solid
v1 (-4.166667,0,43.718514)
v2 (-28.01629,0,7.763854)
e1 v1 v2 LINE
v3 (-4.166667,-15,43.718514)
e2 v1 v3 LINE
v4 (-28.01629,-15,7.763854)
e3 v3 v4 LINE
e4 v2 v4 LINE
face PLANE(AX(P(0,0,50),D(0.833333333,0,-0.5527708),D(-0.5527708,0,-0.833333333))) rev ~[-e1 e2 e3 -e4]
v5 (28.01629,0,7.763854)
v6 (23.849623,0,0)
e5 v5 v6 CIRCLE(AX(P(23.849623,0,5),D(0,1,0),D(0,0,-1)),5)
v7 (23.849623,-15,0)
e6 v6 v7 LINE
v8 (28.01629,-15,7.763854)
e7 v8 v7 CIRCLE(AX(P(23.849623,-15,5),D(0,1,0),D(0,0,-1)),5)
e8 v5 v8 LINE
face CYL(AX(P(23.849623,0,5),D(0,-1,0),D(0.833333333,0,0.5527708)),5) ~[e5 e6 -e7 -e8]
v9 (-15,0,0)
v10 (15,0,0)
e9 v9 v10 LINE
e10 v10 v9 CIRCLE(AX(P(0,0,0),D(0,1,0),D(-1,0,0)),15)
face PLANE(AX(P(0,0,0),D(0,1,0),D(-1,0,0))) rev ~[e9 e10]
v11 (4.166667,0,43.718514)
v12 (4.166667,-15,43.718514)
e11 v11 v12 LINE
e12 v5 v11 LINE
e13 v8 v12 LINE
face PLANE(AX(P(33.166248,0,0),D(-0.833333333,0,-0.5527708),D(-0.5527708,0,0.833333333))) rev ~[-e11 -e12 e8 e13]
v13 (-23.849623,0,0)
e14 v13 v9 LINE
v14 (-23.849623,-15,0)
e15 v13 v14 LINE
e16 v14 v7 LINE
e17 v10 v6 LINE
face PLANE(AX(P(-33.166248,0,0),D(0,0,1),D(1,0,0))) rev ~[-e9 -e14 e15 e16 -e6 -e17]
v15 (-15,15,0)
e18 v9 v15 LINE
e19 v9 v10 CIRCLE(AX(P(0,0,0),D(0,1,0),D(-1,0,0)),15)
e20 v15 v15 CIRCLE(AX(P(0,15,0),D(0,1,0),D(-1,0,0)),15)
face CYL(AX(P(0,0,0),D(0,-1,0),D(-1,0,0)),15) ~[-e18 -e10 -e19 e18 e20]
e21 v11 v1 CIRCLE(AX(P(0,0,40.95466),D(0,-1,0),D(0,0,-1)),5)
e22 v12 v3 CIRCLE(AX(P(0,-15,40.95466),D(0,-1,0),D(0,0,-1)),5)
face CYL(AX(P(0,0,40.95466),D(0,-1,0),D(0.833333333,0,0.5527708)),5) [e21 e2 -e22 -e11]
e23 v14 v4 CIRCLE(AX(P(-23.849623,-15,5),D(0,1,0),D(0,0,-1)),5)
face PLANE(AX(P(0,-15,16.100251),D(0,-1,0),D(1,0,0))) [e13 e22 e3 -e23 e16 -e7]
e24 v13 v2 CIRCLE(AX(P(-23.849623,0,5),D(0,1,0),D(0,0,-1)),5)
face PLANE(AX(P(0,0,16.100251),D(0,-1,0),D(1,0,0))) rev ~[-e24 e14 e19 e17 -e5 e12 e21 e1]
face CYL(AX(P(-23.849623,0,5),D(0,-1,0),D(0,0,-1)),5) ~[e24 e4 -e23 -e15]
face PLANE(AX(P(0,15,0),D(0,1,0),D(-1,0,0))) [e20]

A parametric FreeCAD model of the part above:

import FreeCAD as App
import Part
import Sketcher
from FreeCAD import Vector


def edges_at(feature, points):
    """Names of the edges that pass closest to the given points."""
    edges = feature.Shape.Edges
    near = lambda p: min(range(len(edges)), key=lambda i: edges[i].distToShape(Part.Vertex(*p))[0])
    return sorted({f"Edge{near(p) + 1}" for p in points})

doc = App.newDocument("Part")
body = doc.addObject("PartDesign::Body", "Body")

# Sketch on XZ plane
sketch1 = doc.addObject("Sketcher::SketchObject", "Sketch")
body.addObject(sketch1)
sketch1.AttachmentSupport = (doc.XZ_Plane, [""])
sketch1.MapMode = "FlatFace"
sketch1.addGeometry([
    Part.LineSegment(Vector(0, 50, 0), Vector(-33, 0, 0)),
    Part.LineSegment(Vector(-33, 0, 0), Vector(33, 0, 0)),
    Part.LineSegment(Vector(33, 0, 0), Vector(0, 50, 0)),
], False)
sketch1.addConstraint([
    Sketcher.Constraint("Coincident", 0, 2, 1, 1),
    Sketcher.Constraint("Coincident", 1, 2, 2, 1),
    Sketcher.Constraint("Coincident", 2, 2, 0, 1),
    Sketcher.Constraint("Horizontal", 1),
    Sketcher.Constraint("Symmetric", 0, 2, 1, 2, -1, 1),
    Sketcher.Constraint("PointOnObject", 2, 2, -2),
    Sketcher.Constraint("Distance", 0, 60.0),
    Sketcher.Constraint("DistanceY", -1, 1, 2, 2, 50.0),
])
pad1 = doc.addObject("PartDesign::Pad", "Pad")
body.addObject(pad1)
pad1.Profile = sketch1
pad1.Length = 15

# Sketch on XZ plane
sketch2 = doc.addObject("Sketcher::SketchObject", "Sketch001")
body.addObject(sketch2)
sketch2.AttachmentSupport = (doc.XZ_Plane, [""])
sketch2.MapMode = "FlatFace"
sketch2.addGeometry(Part.Circle(Vector(0, 0, 0), Vector(0, 0, 1), 15), False)
sketch2.addConstraint([
    Sketcher.Constraint("Coincident", 0, 3, -1, 1),
    Sketcher.Constraint("Diameter", 0, 30.0),
])
pad2 = doc.addObject("PartDesign::Pad", "Pad001")
body.addObject(pad2)
pad2.Profile = sketch2
pad2.Length = 15
pad2.Reversed = True
doc.recompute()

fillet = doc.addObject("PartDesign::Fillet", "Fillet")
body.addObject(fillet)
fillet.Base = (pad2, edges_at(pad2, [(0, -7.5, 50)]))
fillet.Radius = 5
doc.recompute()

fillet2 = doc.addObject("PartDesign::Fillet", "Fillet001")
body.addObject(fillet2)
fillet2.Base = (fillet, edges_at(fillet, [(33.166, -7.5, 0), (-33.166, -7.5, 0)]))
fillet2.Radius = 5

doc.recompute()
